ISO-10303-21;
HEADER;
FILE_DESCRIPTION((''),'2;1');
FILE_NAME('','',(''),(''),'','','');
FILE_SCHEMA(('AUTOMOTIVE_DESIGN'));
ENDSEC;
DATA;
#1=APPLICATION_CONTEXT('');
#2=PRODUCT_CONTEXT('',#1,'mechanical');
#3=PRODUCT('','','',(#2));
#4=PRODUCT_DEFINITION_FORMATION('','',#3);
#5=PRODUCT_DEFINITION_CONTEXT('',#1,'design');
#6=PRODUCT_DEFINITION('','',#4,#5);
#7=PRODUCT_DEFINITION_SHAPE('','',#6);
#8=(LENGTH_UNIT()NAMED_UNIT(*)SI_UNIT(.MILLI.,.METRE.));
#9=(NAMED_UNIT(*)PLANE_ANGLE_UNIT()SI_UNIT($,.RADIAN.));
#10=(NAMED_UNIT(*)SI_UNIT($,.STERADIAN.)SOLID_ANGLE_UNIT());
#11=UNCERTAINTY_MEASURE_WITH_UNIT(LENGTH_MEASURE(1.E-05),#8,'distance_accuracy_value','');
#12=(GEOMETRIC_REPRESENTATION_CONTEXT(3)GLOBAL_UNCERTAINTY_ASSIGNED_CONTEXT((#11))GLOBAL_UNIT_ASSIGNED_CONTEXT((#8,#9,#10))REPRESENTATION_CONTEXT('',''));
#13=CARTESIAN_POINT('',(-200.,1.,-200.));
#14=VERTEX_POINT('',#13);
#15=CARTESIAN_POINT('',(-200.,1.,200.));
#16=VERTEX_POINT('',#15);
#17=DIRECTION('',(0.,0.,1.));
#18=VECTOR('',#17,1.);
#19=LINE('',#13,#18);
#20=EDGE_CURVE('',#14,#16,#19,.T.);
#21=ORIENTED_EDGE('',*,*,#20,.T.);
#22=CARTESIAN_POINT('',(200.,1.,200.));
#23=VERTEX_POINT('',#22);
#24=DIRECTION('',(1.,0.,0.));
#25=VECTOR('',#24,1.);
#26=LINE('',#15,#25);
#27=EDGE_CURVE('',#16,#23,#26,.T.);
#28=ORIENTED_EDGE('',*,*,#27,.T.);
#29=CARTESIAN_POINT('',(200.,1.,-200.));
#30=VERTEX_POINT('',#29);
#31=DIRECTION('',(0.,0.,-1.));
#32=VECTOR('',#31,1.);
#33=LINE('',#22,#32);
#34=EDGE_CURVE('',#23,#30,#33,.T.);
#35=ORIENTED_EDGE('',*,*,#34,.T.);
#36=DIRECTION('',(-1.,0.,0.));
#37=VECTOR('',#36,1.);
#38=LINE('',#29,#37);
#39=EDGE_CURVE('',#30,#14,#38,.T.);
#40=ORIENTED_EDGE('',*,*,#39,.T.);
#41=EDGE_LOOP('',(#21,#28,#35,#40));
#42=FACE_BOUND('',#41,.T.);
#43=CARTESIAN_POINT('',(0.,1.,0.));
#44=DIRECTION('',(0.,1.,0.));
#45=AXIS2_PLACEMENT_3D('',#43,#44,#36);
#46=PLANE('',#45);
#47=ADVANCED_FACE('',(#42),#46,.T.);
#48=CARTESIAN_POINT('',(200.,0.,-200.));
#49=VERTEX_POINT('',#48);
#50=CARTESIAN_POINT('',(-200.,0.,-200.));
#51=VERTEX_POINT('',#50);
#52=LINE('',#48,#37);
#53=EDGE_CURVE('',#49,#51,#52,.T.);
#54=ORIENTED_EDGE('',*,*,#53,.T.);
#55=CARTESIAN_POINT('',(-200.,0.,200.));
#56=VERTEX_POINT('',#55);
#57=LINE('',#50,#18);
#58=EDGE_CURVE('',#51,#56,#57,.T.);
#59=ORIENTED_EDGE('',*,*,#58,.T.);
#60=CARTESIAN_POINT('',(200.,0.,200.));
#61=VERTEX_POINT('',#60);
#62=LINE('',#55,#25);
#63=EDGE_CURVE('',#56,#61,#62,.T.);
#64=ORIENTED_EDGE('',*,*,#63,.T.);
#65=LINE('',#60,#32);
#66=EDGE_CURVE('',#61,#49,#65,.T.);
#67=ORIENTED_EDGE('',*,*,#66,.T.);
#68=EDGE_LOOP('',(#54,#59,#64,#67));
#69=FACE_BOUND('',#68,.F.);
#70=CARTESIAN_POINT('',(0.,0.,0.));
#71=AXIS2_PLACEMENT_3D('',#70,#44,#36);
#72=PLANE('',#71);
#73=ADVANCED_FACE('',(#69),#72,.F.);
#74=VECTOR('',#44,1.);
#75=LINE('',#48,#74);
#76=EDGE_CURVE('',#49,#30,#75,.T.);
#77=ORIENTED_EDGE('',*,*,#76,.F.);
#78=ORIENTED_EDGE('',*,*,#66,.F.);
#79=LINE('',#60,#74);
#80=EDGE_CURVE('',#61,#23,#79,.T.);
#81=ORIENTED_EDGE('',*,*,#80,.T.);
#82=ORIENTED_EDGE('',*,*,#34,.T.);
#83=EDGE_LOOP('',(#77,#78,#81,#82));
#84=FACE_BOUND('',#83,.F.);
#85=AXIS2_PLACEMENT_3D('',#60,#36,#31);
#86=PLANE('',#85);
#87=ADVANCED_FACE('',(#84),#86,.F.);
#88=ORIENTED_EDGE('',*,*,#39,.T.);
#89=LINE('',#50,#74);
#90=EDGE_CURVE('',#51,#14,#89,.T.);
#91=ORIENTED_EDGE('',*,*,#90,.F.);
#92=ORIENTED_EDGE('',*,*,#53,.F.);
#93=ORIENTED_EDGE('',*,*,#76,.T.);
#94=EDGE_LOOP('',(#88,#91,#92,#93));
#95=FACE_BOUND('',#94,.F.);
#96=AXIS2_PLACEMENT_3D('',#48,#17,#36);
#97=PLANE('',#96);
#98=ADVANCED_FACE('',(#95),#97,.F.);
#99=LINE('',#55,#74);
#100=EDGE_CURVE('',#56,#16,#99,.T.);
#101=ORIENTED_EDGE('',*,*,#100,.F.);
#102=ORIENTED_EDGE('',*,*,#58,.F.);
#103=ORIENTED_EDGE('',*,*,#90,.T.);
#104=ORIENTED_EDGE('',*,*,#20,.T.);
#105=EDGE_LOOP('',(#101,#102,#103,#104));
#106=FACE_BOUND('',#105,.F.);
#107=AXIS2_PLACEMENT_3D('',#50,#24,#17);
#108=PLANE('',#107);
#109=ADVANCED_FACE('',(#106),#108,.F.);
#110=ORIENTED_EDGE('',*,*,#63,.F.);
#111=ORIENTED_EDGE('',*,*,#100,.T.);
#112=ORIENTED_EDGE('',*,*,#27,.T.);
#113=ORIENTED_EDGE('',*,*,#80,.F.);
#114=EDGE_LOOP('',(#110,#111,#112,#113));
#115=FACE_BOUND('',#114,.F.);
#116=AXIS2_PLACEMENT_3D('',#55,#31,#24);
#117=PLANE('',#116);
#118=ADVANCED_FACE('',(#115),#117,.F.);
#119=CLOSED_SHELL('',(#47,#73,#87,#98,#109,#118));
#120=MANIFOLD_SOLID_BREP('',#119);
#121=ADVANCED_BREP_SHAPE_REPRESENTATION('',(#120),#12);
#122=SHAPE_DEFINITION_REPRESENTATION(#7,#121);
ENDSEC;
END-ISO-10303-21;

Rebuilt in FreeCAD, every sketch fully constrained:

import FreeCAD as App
import Part
import Sketcher
from FreeCAD import Vector


def add_polygon(sketch, points):
    """Adds a closed chain of lines whose ends are joined by coincident constraints."""
    first, n = sketch.GeometryCount, len(points)
    for a, b in zip(points, points[1:] + points[:1]):
        sketch.addGeometry(Part.LineSegment(App.Vector(*a, 0), App.Vector(*b, 0)), False)
    for i in range(n):
        sketch.addConstraint(Sketcher.Constraint("Coincident", first + i, 2, first + (i + 1) % n, 1))

doc = App.newDocument("Part")
params = doc.addObject("Spreadsheet::Sheet", "Params")
for row, (alias, value) in enumerate([
    ("sketch1_width", "400 mm"),
    ("pad1_length", "1 mm"),
], start=1):
    params.set(f"A{row}", alias)
    params.set(f"B{row}", "=" + value)
    params.setAlias(f"B{row}", alias)

body = doc.addObject("PartDesign::Body", "Body")

# Sketch on XZ plane
sketch1 = body.newObject("Sketcher::SketchObject", "Sketch")
sketch1.AttachmentSupport = (doc.getObject("XZ_Plane"), [""])
sketch1.MapMode = "FlatFace"
add_polygon(sketch1, [(-200, -200), (-200, 200), (200, 200), (200, -200)])  # lines 0-3
sketch1.addConstraint([
    Sketcher.Constraint("Vertical", 0),
    Sketcher.Constraint("Horizontal", 1),
    Sketcher.Constraint("Vertical", 2),
    Sketcher.Constraint("Horizontal", 3),
    Sketcher.Constraint("Symmetric", 0, 2, 2, 2, -1, 1),
    Sketcher.Constraint("Equal", 3, 0),
    Sketcher.Constraint("DistanceX", 1, 1, 1, 2, 400.0),
])
sketch1.setExpression("Constraints[10]", "Params.sketch1_width")
pad1 = body.newObject("PartDesign::Pad", "Pad")
pad1.Profile = sketch1
pad1.setExpression("Length", "Params.pad1_length")
pad1.Reversed = True

doc.recompute()
